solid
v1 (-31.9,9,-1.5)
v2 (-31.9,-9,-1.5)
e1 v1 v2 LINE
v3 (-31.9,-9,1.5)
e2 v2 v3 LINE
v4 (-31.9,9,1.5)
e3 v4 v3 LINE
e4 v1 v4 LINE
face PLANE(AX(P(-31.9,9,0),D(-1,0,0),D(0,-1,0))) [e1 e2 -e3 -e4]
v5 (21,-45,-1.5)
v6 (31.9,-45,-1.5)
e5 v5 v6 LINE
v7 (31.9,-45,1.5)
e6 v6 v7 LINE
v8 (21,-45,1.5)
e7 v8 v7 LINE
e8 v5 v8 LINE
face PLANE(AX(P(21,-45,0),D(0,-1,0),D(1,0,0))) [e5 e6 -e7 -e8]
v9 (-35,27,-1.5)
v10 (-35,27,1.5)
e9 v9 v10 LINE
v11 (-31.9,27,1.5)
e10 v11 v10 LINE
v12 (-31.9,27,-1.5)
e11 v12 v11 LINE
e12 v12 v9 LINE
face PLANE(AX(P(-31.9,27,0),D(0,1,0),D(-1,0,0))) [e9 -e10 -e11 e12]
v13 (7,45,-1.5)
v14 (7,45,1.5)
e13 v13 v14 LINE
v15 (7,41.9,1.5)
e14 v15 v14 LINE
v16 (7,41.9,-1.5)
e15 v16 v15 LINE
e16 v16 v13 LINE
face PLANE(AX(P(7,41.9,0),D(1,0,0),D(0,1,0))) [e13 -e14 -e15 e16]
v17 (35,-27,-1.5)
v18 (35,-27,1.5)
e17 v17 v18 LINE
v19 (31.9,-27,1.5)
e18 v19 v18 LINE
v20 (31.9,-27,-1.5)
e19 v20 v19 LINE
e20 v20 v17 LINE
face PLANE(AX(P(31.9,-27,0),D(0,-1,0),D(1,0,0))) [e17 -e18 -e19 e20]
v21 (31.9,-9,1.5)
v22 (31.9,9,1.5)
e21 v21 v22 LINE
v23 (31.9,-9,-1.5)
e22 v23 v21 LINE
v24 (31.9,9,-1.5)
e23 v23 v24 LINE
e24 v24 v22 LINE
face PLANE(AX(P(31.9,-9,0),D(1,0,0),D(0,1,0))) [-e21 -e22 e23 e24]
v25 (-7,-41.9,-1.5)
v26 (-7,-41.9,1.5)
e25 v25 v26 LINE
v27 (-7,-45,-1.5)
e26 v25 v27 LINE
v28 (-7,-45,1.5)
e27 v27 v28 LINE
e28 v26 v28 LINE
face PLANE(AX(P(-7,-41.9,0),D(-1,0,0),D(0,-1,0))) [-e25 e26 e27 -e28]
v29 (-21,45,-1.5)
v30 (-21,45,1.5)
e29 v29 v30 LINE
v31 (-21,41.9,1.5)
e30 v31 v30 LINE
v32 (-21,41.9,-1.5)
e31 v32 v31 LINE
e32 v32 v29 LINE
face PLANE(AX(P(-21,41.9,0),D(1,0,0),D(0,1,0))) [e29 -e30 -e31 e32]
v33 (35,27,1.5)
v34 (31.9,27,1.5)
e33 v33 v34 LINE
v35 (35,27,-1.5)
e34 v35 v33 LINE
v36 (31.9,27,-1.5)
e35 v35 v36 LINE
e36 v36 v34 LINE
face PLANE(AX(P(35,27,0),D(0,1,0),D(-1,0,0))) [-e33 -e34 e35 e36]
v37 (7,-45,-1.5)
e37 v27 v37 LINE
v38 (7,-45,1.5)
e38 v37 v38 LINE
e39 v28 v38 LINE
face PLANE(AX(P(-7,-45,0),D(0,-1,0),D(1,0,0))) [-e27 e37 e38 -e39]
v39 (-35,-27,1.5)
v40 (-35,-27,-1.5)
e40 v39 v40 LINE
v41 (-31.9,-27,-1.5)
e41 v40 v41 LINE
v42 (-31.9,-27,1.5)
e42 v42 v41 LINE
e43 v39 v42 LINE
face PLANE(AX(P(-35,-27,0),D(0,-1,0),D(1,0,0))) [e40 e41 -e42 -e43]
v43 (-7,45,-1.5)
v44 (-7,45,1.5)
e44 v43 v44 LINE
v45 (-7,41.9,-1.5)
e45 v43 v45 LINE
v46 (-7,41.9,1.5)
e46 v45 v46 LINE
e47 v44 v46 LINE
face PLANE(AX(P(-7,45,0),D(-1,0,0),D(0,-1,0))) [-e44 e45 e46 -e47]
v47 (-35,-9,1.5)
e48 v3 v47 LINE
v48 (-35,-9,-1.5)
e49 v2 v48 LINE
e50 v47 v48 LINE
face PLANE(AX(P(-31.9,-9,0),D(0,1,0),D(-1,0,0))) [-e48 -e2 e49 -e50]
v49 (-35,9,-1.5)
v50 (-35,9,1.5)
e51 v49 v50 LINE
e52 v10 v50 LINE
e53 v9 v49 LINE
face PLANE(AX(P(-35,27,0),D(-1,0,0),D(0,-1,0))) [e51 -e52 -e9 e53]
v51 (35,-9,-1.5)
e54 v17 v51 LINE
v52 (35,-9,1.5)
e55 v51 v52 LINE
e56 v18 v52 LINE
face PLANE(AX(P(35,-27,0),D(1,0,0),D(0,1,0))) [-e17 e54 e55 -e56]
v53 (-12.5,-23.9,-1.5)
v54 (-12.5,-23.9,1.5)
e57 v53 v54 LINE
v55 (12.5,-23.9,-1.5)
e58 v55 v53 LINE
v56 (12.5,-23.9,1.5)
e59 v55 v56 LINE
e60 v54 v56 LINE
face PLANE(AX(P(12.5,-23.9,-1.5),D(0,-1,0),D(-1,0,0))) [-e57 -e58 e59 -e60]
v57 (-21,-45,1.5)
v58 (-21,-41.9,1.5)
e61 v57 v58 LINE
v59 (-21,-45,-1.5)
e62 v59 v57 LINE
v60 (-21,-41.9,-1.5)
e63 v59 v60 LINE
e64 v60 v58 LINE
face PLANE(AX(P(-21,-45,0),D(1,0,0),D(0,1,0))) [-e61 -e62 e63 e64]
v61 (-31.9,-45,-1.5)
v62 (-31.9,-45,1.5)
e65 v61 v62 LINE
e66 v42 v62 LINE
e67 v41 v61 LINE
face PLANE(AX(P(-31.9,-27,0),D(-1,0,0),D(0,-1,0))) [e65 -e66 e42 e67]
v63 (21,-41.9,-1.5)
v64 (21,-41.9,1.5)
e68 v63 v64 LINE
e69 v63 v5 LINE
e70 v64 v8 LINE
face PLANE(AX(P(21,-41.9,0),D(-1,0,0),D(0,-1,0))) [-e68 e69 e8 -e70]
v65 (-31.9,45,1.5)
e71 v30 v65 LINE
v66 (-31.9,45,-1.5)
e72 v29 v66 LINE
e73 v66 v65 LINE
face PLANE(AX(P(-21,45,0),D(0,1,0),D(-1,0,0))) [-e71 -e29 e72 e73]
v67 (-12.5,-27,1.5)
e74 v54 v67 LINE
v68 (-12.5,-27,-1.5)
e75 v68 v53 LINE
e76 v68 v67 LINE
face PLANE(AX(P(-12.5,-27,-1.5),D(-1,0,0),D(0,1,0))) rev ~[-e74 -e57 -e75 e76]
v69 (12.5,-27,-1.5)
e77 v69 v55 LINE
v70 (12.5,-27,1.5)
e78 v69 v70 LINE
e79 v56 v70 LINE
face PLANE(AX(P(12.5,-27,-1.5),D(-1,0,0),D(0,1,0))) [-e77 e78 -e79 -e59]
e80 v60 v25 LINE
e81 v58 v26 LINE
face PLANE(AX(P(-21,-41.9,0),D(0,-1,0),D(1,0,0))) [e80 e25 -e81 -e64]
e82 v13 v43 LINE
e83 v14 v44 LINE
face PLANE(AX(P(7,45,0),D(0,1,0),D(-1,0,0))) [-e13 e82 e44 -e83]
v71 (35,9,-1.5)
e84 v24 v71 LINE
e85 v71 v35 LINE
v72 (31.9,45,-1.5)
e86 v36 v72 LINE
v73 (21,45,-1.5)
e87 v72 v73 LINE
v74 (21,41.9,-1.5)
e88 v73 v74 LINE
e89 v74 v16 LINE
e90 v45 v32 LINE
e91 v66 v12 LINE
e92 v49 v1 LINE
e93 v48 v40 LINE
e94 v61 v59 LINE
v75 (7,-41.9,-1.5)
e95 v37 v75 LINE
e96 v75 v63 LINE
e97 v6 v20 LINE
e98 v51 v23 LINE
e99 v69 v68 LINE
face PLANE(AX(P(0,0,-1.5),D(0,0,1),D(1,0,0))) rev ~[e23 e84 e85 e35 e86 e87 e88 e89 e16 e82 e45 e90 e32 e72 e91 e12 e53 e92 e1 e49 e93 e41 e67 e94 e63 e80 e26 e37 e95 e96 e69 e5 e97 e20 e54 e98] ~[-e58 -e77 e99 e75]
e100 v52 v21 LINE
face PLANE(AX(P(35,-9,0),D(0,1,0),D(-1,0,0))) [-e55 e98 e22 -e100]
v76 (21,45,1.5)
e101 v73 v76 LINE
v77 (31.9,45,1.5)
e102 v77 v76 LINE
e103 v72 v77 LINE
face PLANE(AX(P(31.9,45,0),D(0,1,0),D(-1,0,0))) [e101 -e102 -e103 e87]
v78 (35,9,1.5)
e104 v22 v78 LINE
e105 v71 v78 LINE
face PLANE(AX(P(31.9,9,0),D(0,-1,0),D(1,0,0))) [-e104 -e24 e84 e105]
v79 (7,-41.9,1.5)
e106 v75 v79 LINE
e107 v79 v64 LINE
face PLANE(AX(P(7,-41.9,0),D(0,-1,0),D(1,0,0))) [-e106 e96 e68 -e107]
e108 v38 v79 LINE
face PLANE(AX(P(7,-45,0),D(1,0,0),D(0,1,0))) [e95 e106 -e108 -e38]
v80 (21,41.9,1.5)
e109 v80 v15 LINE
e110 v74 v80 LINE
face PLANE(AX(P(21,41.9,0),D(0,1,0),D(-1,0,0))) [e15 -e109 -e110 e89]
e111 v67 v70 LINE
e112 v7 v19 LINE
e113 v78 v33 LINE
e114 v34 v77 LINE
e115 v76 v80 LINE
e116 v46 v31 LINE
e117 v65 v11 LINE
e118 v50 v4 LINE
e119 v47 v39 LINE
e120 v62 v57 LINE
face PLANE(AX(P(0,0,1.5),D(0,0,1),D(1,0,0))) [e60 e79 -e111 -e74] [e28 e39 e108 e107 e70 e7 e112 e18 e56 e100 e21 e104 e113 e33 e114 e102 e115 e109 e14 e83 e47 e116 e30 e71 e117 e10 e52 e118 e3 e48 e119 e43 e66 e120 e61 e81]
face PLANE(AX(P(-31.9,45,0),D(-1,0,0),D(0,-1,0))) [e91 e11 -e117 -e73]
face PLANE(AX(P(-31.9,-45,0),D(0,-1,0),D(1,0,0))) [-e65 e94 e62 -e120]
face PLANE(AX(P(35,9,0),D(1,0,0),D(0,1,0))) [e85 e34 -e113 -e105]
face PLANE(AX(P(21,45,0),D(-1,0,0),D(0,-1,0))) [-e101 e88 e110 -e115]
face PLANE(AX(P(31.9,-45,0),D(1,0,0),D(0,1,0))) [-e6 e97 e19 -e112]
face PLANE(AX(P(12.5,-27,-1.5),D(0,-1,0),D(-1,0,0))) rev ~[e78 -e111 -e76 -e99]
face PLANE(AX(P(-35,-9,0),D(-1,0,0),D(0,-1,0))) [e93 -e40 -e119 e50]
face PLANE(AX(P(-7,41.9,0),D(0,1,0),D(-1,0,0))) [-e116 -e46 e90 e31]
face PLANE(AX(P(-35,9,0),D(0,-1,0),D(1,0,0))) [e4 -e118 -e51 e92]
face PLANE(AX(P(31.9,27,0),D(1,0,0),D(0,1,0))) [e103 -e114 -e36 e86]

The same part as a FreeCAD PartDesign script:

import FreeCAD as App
import Part
import Sketcher

V = App.Vector
Q = App.Units.Quantity


def add_polygon(sketch, points):
    """Adds a closed chain of lines whose ends are joined by coincident constraints."""
    first, n = sketch.GeometryCount, len(points)
    for a, b in zip(points, points[1:] + points[:1]):
        sketch.addGeometry(Part.LineSegment(App.Vector(*a, 0), App.Vector(*b, 0)), False)
    for i in range(n):
        sketch.addConstraint(Sketcher.Constraint("Coincident", first + i, 2, first + (i + 1) % n, 1))

doc = App.newDocument("Part")
body = doc.addObject("PartDesign::Body", "Body")

# Sketch on XY plane
sketch1 = doc.addObject("Sketcher::SketchObject", "Sketch")
body.addObject(sketch1)
sketch1.AttachmentSupport = (doc.XY_Plane, [""])
sketch1.MapMode = "FlatFace"
add_polygon(sketch1, [(-31.9, -27), (-31.9, -45), (-21, -45), (-21, -41.9), (-7, -41.9), (-7, -45), (7, -45), (7, -41.9), (21, -41.9), (21, -45), (31.9, -45), (31.9, -27), (35, -27), (35, -9), (31.9, -9), (31.9, 9), (35, 9), (35, 27), (31.9, 27), (31.9, 45), (21, 45), (21, 41.9), (7, 41.9), (7, 45), (-7, 45), (-7, 41.9), (-21, 41.9), (-21, 45), (-31.9, 45), (-31.9, 27), (-35, 27), (-35, 9), (-31.9, 9), (-31.9, -9), (-35, -9), (-35, -27)])  # lines 0-35
sketch1.addConstraint(Sketcher.Constraint("Vertical", 0))
sketch1.addConstraint(Sketcher.Constraint("Horizontal", 1))
sketch1.addConstraint(Sketcher.Constraint("Vertical", 2))
sketch1.addConstraint(Sketcher.Constraint("Horizontal", 3))
sketch1.addConstraint(Sketcher.Constraint("Vertical", 4))
sketch1.addConstraint(Sketcher.Constraint("Horizontal", 5))
sketch1.addConstraint(Sketcher.Constraint("Vertical", 6))
sketch1.addConstraint(Sketcher.Constraint("Horizontal", 7))
sketch1.addConstraint(Sketcher.Constraint("Vertical", 8))
sketch1.addConstraint(Sketcher.Constraint("Horizontal", 9))
sketch1.addConstraint(Sketcher.Constraint("Vertical", 10))
sketch1.addConstraint(Sketcher.Constraint("Horizontal", 11))
sketch1.addConstraint(Sketcher.Constraint("Vertical", 12))
sketch1.addConstraint(Sketcher.Constraint("Horizontal", 13))
sketch1.addConstraint(Sketcher.Constraint("Vertical", 14))
sketch1.addConstraint(Sketcher.Constraint("Horizontal", 15))
sketch1.addConstraint(Sketcher.Constraint("Vertical", 16))
sketch1.addConstraint(Sketcher.Constraint("Horizontal", 17))
sketch1.addConstraint(Sketcher.Constraint("Vertical", 18))
sketch1.addConstraint(Sketcher.Constraint("Horizontal", 19))
sketch1.addConstraint(Sketcher.Constraint("Vertical", 20))
sketch1.addConstraint(Sketcher.Constraint("Horizontal", 21))
sketch1.addConstraint(Sketcher.Constraint("Vertical", 22))
sketch1.addConstraint(Sketcher.Constraint("Horizontal", 23))
sketch1.addConstraint(Sketcher.Constraint("Vertical", 24))
sketch1.addConstraint(Sketcher.Constraint("Horizontal", 25))
sketch1.addConstraint(Sketcher.Constraint("Vertical", 26))
sketch1.addConstraint(Sketcher.Constraint("Horizontal", 27))
sketch1.addConstraint(Sketcher.Constraint("Vertical", 28))
sketch1.addConstraint(Sketcher.Constraint("Horizontal", 29))
sketch1.addConstraint(Sketcher.Constraint("Vertical", 30))
sketch1.addConstraint(Sketcher.Constraint("Horizontal", 31))
sketch1.addConstraint(Sketcher.Constraint("Vertical", 32))
sketch1.addConstraint(Sketcher.Constraint("Horizontal", 33))
sketch1.addConstraint(Sketcher.Constraint("Vertical", 34))
sketch1.addConstraint(Sketcher.Constraint("Horizontal", 35))
sketch1.addConstraint(Sketcher.Constraint("Symmetric", 0, 2, 18, 2, -1, 1))
sketch1.addConstraint(Sketcher.Constraint("Symmetric", 2, 2, 20, 2, -1, 1))
sketch1.addConstraint(Sketcher.Constraint("Symmetric", 4, 2, 22, 2, -1, 1))
sketch1.addConstraint(Sketcher.Constraint("Symmetric", 6, 2, 24, 2, -1, 1))
sketch1.addConstraint(Sketcher.Constraint("Symmetric", 8, 2, 26, 2, -1, 1))
sketch1.addConstraint(Sketcher.Constraint("Symmetric", 10, 2, 28, 2, -1, 1))
sketch1.addConstraint(Sketcher.Constraint("Symmetric", 12, 2, 30, 2, -1, 1))
sketch1.addConstraint(Sketcher.Constraint("Symmetric", 14, 2, 32, 2, -1, 1))
sketch1.addConstraint(Sketcher.Constraint("Symmetric", 16, 2, 34, 2, -1, 1))
sketch1.addConstraint(Sketcher.Constraint("Symmetric", 3, 2, 6, 2, -2))
sketch1.addConstraint(Sketcher.Constraint("Symmetric", 1, 2, 8, 2, -2))
sketch1.addConstraint(Sketcher.Constraint("Symmetric", 17, 2, 28, 2, -2))
sketch1.addConstraint(Sketcher.Constraint("Symmetric", 15, 2, 30, 2, -2))
sketch1.addConstraint(Sketcher.Constraint("Horizontal", 1, 2, 4, 2))
sketch1.addConstraint(Sketcher.Constraint("Vertical", 10, 2, 13, 2))
sketch1.addConstraint(Sketcher.Constraint("Equal", 3, 5))
sketch1.addConstraint(Sketcher.Constraint("Equal", 35, 2))
sketch1.addConstraint(Sketcher.Constraint("Equal", 10, 12))
sketch1.addConstraint(Sketcher.Constraint("Equal", 12, 14))
sketch1.addConstraint(Sketcher.Constraint("DistanceX", 3, 1, 3, 2, Q("14 mm")))
sketch1.addConstraint(Sketcher.Constraint("DistanceY", 0, 2, 0, 1, Q("18 mm")))
sketch1.addConstraint(Sketcher.Constraint("DistanceX", 1, 1, 1, 2, Q("10.9 mm")))
sketch1.addConstraint(Sketcher.Constraint("DistanceX", 11, 1, 11, 2, Q("3.1 mm")))
pad1 = doc.addObject("PartDesign::Pad", "Pad")
body.addObject(pad1)
pad1.Profile = sketch1
pad1.Length = 3
pad1.Midplane = True

# Sketch on XY plane
sketch2 = doc.addObject("Sketcher::SketchObject", "Sketch001")
body.addObject(sketch2)
sketch2.AttachmentSupport = (doc.XY_Plane, [""])
sketch2.MapMode = "FlatFace"
sketch2.AttachmentOffset = App.Placement(V(0, 0, -1.5), App.Rotation())
add_polygon(sketch2, [(12.5, -23.9), (12.5, -27), (-12.5, -27), (-12.5, -23.9)])  # lines 0-3
sketch2.addConstraint(Sketcher.Constraint("Vertical", 0))
sketch2.addConstraint(Sketcher.Constraint("Horizontal", 1))
sketch2.addConstraint(Sketcher.Constraint("Vertical", 2))
sketch2.addConstraint(Sketcher.Constraint("Horizontal", 3))
sketch2.addConstraint(Sketcher.Constraint("DistanceX", 1, 2, 1, 1, Q("25 mm")))
sketch2.addConstraint(Sketcher.Constraint("DistanceY", 0, 2, 0, 1, Q("3.1 mm")))
sketch2.addConstraint(Sketcher.Constraint("DistanceY", 0, 2, -1, 1, Q("27 mm")))
sketch2.addConstraint(Sketcher.Constraint("DistanceX", -1, 1, 0, 2, Q("12.5 mm")))
pocket1 = doc.addObject("PartDesign::Pocket", "Pocket")
body.addObject(pocket1)
pocket1.Profile = sketch2
pocket1.Length = 10
pocket1.Reversed = True

doc.recompute()
